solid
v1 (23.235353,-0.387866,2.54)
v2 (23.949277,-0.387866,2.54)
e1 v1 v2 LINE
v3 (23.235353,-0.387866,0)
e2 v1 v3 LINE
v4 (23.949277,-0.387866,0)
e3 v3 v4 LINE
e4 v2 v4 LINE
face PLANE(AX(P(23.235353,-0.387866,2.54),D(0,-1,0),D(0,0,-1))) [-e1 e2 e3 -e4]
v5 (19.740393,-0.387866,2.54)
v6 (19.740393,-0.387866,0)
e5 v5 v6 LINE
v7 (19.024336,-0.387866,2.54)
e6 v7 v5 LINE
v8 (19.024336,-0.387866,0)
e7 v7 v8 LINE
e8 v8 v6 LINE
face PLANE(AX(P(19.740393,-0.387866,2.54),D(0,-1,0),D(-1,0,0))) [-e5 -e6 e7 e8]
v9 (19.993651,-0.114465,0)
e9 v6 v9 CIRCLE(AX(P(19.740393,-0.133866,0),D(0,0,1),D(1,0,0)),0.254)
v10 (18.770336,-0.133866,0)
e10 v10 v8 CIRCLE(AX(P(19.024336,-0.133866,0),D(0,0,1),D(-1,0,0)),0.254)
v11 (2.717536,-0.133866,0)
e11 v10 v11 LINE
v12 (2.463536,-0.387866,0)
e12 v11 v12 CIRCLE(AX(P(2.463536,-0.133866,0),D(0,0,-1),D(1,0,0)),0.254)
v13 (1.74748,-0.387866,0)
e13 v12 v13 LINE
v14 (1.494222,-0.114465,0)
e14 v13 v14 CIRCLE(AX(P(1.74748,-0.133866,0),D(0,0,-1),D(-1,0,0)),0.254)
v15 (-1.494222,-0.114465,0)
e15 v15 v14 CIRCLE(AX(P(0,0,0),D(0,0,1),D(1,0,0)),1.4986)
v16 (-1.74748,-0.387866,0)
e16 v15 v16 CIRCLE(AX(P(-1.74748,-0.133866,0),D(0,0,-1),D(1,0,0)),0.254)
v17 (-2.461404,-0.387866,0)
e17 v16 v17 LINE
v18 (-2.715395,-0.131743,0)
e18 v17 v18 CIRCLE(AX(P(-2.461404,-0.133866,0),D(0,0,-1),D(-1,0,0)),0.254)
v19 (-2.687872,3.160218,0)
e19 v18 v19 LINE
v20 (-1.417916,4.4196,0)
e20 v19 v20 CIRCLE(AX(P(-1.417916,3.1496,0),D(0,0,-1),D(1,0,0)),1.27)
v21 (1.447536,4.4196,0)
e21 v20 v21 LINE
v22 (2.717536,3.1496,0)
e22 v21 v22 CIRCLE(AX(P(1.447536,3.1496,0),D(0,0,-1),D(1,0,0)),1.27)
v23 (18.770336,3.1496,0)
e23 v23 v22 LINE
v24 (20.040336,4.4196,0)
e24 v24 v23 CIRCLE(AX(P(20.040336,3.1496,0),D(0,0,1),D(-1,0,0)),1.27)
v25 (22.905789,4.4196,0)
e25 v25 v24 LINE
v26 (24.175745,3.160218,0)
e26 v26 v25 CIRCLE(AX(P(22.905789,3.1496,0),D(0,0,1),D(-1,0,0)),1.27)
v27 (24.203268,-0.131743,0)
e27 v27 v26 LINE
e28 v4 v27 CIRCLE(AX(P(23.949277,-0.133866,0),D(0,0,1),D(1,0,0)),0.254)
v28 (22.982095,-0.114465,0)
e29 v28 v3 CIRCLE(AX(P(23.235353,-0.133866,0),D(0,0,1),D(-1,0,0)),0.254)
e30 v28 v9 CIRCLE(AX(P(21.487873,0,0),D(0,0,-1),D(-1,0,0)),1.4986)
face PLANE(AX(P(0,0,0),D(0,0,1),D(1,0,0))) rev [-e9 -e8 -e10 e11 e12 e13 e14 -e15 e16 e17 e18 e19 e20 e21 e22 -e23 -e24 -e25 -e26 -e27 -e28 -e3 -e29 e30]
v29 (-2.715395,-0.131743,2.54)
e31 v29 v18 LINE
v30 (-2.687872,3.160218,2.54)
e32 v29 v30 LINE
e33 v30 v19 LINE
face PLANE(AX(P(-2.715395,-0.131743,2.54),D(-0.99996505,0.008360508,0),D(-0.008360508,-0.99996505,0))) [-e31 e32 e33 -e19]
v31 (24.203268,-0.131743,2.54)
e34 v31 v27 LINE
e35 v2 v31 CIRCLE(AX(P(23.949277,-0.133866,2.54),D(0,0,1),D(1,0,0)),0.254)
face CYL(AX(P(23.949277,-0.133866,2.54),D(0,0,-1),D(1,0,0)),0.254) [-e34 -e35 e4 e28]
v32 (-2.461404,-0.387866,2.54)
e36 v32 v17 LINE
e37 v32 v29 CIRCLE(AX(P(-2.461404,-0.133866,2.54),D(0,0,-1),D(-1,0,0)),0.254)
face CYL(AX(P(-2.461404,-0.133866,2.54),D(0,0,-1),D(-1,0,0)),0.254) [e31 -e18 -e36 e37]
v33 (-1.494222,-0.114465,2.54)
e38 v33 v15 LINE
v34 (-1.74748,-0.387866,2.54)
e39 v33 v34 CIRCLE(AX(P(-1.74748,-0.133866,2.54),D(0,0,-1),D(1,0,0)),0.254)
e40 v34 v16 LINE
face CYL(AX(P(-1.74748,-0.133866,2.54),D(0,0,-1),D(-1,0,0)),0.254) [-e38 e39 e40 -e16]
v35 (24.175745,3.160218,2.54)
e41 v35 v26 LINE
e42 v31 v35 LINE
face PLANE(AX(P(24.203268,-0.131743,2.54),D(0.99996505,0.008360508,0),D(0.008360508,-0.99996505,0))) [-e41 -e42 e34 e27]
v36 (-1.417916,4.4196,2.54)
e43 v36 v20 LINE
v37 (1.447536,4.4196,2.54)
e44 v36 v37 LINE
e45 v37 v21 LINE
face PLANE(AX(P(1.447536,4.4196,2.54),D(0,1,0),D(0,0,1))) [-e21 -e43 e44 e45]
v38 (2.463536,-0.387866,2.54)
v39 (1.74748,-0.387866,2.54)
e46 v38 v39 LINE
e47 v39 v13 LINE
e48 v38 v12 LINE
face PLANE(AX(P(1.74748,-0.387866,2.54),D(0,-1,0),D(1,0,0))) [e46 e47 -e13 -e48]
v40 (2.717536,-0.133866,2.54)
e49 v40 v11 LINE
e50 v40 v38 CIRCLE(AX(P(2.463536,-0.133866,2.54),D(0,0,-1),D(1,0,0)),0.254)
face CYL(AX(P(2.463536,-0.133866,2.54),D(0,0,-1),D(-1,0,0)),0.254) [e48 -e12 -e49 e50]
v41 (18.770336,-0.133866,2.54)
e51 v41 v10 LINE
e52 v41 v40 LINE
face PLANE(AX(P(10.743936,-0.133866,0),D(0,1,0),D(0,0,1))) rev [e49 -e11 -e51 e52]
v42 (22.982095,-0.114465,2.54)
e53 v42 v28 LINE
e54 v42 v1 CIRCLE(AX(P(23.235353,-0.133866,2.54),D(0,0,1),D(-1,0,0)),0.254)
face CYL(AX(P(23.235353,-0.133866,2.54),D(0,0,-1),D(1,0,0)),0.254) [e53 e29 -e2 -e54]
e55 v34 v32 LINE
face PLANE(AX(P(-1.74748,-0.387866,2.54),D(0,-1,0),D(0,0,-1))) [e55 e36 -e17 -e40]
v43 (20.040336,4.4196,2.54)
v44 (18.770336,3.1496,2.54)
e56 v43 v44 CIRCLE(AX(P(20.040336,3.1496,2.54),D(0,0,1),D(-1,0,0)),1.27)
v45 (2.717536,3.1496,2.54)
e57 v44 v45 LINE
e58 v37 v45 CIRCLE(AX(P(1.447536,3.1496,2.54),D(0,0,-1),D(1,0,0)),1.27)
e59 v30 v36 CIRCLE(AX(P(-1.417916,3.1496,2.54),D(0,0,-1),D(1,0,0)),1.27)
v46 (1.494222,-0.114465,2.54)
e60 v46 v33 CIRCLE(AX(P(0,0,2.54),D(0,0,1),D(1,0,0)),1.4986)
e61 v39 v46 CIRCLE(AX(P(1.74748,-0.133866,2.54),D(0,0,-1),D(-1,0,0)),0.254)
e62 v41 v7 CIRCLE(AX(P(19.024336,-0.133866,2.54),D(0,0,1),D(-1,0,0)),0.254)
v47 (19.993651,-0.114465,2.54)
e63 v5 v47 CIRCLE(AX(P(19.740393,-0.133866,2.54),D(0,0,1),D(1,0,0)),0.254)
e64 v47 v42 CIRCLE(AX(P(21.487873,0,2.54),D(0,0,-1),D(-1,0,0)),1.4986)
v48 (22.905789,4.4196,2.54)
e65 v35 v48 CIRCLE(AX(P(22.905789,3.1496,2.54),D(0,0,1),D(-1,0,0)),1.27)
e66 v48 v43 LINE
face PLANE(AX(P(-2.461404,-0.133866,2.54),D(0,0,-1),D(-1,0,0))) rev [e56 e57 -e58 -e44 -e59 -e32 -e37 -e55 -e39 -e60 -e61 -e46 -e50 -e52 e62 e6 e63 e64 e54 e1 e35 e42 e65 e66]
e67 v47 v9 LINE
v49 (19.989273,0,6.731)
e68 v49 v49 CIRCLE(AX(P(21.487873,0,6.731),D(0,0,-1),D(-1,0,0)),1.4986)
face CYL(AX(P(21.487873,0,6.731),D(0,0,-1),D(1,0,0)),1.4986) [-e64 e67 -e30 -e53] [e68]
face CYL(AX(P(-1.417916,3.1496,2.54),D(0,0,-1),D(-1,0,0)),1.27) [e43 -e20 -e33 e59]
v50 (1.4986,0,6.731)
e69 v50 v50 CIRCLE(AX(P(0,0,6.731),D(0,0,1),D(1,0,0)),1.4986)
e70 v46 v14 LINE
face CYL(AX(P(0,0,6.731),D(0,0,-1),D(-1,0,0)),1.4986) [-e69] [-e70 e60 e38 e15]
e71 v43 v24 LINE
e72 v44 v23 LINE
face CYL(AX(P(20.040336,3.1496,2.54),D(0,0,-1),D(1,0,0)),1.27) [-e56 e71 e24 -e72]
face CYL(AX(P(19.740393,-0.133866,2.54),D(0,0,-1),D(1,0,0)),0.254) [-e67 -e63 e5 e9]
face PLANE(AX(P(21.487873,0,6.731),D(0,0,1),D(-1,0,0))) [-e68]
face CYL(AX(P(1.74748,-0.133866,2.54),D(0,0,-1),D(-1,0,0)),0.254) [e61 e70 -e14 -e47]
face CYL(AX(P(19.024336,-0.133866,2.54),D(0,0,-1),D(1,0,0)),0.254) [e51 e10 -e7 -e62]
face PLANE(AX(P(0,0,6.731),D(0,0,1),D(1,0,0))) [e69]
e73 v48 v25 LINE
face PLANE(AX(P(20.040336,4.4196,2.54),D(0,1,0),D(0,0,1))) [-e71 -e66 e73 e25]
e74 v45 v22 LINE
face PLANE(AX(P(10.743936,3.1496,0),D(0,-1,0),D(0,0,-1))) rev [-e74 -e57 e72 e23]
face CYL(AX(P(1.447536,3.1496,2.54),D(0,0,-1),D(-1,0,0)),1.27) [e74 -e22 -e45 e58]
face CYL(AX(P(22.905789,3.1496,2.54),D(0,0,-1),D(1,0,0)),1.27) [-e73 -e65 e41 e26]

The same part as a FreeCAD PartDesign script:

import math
import FreeCAD as App
import Part
import Sketcher

V = App.Vector
Q = App.Units.Quantity

doc = App.newDocument("Part")
body = doc.addObject("PartDesign::Body", "Body")

sketch1 = body.newObject("Sketcher::SketchObject", "Sketch")
sketch1.AttachmentSupport = (doc.getObject("XY_Plane"), [""])
sketch1.MapMode = "FlatFace"
sketch1.addGeometry(Part.Circle(V(0, 0, 0), V(0, 0, 1), 1.5), False)
sketch1.addConstraint(Sketcher.Constraint("Coincident", 0, 3, -1, 1))
sketch1.addConstraint(Sketcher.Constraint("Diameter", 0, Q("0.118 in")))
pad1 = body.newObject("PartDesign::Pad", "Pad")
pad1.Profile = sketch1
pad1.Length = Q("0.265 in")

sketch2 = body.newObject("Sketcher::SketchObject", "Sketch001")
sketch2.AttachmentSupport = (doc.getObject("XY_Plane"), [""])
sketch2.MapMode = "FlatFace"
sketch2.addGeometry(Part.LineSegment(V(2.46, -0.39, 0), V(1.75, -0.39, 0)), False)
sketch2.addGeometry(Part.ArcOfCircle(Part.Circle(V(1.75, -0.13, 0), V(0, 0, 1), 0.25), math.radians(176), math.radians(270)), False)
sketch2.addGeometry(Part.ArcOfCircle(Part.Circle(V(0, 0, 0), V(0, 0, 1), 1.5), math.radians(-4), math.radians(184)), False)
sketch2.addGeometry(Part.ArcOfCircle(Part.Circle(V(-1.75, -0.13, 0), V(0, 0, 1), 0.25), math.radians(-90), math.radians(4)), False)
sketch2.addGeometry(Part.LineSegment(V(-1.75, -0.39, 0), V(-2.46, -0.39, 0)), False)
sketch2.addGeometry(Part.ArcOfCircle(Part.Circle(V(-2.46, -0.13, 0), V(0, 0, 1), 0.25), math.radians(180), math.radians(270)), False)
sketch2.addGeometry(Part.LineSegment(V(-2.72, -0.13, 0), V(-2.69, 3.16, 0)), False)
sketch2.addGeometry(Part.ArcOfCircle(Part.Circle(V(-1.42, 3.15, 0), V(0, 0, 1), 1.27), math.radians(90), math.radians(180)), False)
sketch2.addGeometry(Part.LineSegment(V(-1.42, 4.42, 0), V(1.45, 4.42, 0)), False)
sketch2.addGeometry(Part.ArcOfCircle(Part.Circle(V(1.45, 3.15, 0), V(0, 0, 1), 1.27), math.radians(0), math.radians(90)), False)
sketch2.addGeometry(Part.LineSegment(V(2.72, 3.15, 0), V(2.72, -0.13, 0)), False)
sketch2.addGeometry(Part.ArcOfCircle(Part.Circle(V(2.46, -0.13, 0), V(0, 0, 1), 0.25), math.radians(-90), math.radians(0)), False)
sketch2.addConstraint(Sketcher.Constraint("Tangent", 0, 2, 1, 2))
sketch2.addConstraint(Sketcher.Constraint("Tangent", 1, 1, 2, 1))
sketch2.addConstraint(Sketcher.Constraint("Tangent", 2, 2, 3, 2))
sketch2.addConstraint(Sketcher.Constraint("Tangent", 3, 1, 4, 1))
sketch2.addConstraint(Sketcher.Constraint("Tangent", 4, 2, 5, 2))
sketch2.addConstraint(Sketcher.Constraint("Tangent", 5, 1, 6, 1))
sketch2.addConstraint(Sketcher.Constraint("Tangent", 6, 2, 7, 2))
sketch2.addConstraint(Sketcher.Constraint("Tangent", 7, 1, 8, 1))
sketch2.addConstraint(Sketcher.Constraint("Tangent", 8, 2, 9, 2))
sketch2.addConstraint(Sketcher.Constraint("Tangent", 9, 1, 10, 1))
sketch2.addConstraint(Sketcher.Constraint("Tangent", 10, 2, 11, 2))
sketch2.addConstraint(Sketcher.Constraint("Tangent", 11, 1, 0, 1))
sketch2.addConstraint(Sketcher.Constraint("Horizontal", 0))
sketch2.addConstraint(Sketcher.Constraint("Horizontal", 4))
sketch2.addConstraint(Sketcher.Constraint("Horizontal", 8))
sketch2.addConstraint(Sketcher.Constraint("Vertical", 10))
sketch2.addConstraint(Sketcher.Constraint("Coincident", 2, 3, -1, 1))
sketch2.addConstraint(Sketcher.Constraint("Equal", 1, 3))
sketch2.addConstraint(Sketcher.Constraint("Equal", 3, 5))
sketch2.addConstraint(Sketcher.Constraint("Equal", 7, 9))
sketch2.addConstraint(Sketcher.Constraint("Equal", 5, 11))
sketch2.addConstraint(Sketcher.Constraint("Horizontal", 1, 3, 3, 3))
sketch2.addConstraint(Sketcher.Constraint("Radius", 1, Q("0.01 in")))
sketch2.addConstraint(Sketcher.Constraint("Radius", 7, Q("0.05 in")))
sketch2.addConstraint(Sketcher.Constraint("Radius", 2, Q("0.059 in")))
sketch2.addConstraint(Sketcher.Constraint("DistanceY", -1, 1, 7, 3, Q("0.124 in")))
sketch2.addConstraint(Sketcher.Constraint("DistanceY", 1, 3, 1, 1, 0.019401))
sketch2.addConstraint(Sketcher.Constraint("DistanceX", 0, 2, 0, 1, 0.716056))
sketch2.addConstraint(Sketcher.Constraint("DistanceX", 4, 2, 4, 1, 0.713924))
sketch2.addConstraint(Sketcher.Constraint("DistanceX", 8, 1, 8, 2, 2.865452))
pad2 = body.newObject("PartDesign::Pad", "Pad001")
pad2.Profile = sketch2
pad2.Length = Q("0.1 in")

sketch3 = body.newObject("Sketcher::SketchObject", "Sketch002")
sketch3.AttachmentSupport = (doc.getObject("YZ_Plane"), [""])
sketch3.MapMode = "FlatFace"
sketch3.AttachmentOffset = App.Placement(V(0, 0, 2.717536), App.Rotation())
sketch3.addGeometry(Part.LineSegment(V(3.1, 2.5, 0), V(-0.1, 2.5, 0)), False)
sketch3.addGeometry(Part.LineSegment(V(-0.1, 2.5, 0), V(-0.1, 0, 0)), False)
sketch3.addGeometry(Part.LineSegment(V(-0.1, 0, 0), V(3.1, 0, 0)), False)
sketch3.addGeometry(Part.LineSegment(V(3.1, 0, 0), V(3.1, 2.5, 0)), False)
sketch3.addConstraint(Sketcher.Constraint("Coincident", 0, 2, 1, 1))
sketch3.addConstraint(Sketcher.Constraint("Coincident", 1, 2, 2, 1))
sketch3.addConstraint(Sketcher.Constraint("Coincident", 2, 2, 3, 1))
sketch3.addConstraint(Sketcher.Constraint("Coincident", 3, 2, 0, 1))
sketch3.addConstraint(Sketcher.Constraint("Horizontal", 0))
sketch3.addConstraint(Sketcher.Constraint("Vertical", 1))
sketch3.addConstraint(Sketcher.Constraint("Horizontal", 2))
sketch3.addConstraint(Sketcher.Constraint("Vertical", 3))
sketch3.addConstraint(Sketcher.Constraint("PointOnObject", 1, 2, -1))
sketch3.addConstraint(Sketcher.Constraint("DistanceY", 1, 2, 1, 1, Q("0.1 in")))
sketch3.addConstraint(Sketcher.Constraint("DistanceX", -1, 1, 2, 2, Q("0.124 in")))
sketch3.addConstraint(Sketcher.Constraint("DistanceX", 0, 2, 0, 1, 3.283466))
pad3 = body.newObject("PartDesign::Pad", "Pad002")
pad3.Profile = sketch3
pad3.Length = Q("0.316 in")
body2 = doc.addObject("PartDesign::Body", "Body001")
doc.recompute()

body2.BaseFeature = body
doc.recompute()

mirroring = doc.addObject("Part::Mirroring", "Mirroring")
mirroring.Source = body
mirroring.Base = V(10.743936, 0, 0)
mirroring.Normal = V(1, 0, 0)
body3 = doc.addObject("PartDesign::Body", "Body002")
body3.BaseFeature = mirroring
boolean = body2.newObject("PartDesign::Boolean", "Boolean")
boolean.Type = "Fuse"
boolean.addObjects([body3])
doc.recompute()
mirroring.Visibility = False

doc.recompute()
